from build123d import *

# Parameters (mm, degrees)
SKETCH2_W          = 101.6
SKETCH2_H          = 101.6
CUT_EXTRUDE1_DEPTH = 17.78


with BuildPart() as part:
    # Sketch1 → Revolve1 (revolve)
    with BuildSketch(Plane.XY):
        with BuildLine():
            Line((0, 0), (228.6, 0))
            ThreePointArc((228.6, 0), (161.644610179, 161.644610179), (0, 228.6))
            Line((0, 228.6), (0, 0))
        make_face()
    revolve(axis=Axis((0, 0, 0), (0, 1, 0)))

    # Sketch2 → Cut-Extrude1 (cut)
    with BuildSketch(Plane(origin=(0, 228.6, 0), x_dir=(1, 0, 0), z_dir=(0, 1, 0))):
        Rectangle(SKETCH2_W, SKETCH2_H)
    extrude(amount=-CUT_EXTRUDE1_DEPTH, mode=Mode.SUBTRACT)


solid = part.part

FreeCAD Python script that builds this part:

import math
import FreeCAD as App
import Part
import Sketcher

V = App.Vector
Q = App.Units.Quantity

doc = App.newDocument("Part")
body = doc.addObject("PartDesign::Body", "Body")

sketch1 = body.newObject("Sketcher::SketchObject", "Sketch")
sketch1.AttachmentSupport = (doc.getObject("XY_Plane"), [""])
sketch1.MapMode = "FlatFace"
sketch1.addGeometry(Part.LineSegment(V(0, 0, 0), V(229, 0, 0)), False)
sketch1.addGeometry(Part.ArcOfCircle(Part.Circle(V(0, 0, 0), V(0, 0, 1), 229), math.radians(0), math.radians(90)), False)
sketch1.addGeometry(Part.LineSegment(V(0, 229, 0), V(0, 0, 0)), False)
sketch1.addConstraint(Sketcher.Constraint("Coincident", 0, 2, 1, 1))
sketch1.addConstraint(Sketcher.Constraint("Coincident", 1, 2, 2, 1))
sketch1.addConstraint(Sketcher.Constraint("Coincident", 2, 2, 0, 1))
sketch1.addConstraint(Sketcher.Constraint("Horizontal", 0))
sketch1.addConstraint(Sketcher.Constraint("Vertical", 2))
sketch1.addConstraint(Sketcher.Constraint("Coincident", 1, 3, -1, 1))
sketch1.addConstraint(Sketcher.Constraint("Coincident", 2, 2, -1, 1))
sketch1.addConstraint(Sketcher.Constraint("Radius", 1, Q("9 in")))
revolution = body.newObject("PartDesign::Revolution", "Revolution")
revolution.Profile = sketch1
revolution.ReferenceAxis = (sketch1, ["V_Axis"])
revolution.Angle = 360

sketch2 = body.newObject("Sketcher::SketchObject", "Sketch001")
sketch2.AttachmentSupport = (doc.getObject("XZ_Plane"), [""])
sketch2.MapMode = "FlatFace"
sketch2.AttachmentOffset = App.Placement(V(0, 0, -9 * 25.4), App.Rotation())
sketch2.addGeometry(Part.LineSegment(V(-51, -51, 0), V(-51, 51, 0)), False)
sketch2.addGeometry(Part.LineSegment(V(-51, 51, 0), V(51, 51, 0)), False)
sketch2.addGeometry(Part.LineSegment(V(51, 51, 0), V(51, -51, 0)), False)
sketch2.addGeometry(Part.LineSegment(V(51, -51, 0), V(-51, -51, 0)), False)
sketch2.addConstraint(Sketcher.Constraint("Coincident", 0, 2, 1, 1))
sketch2.addConstraint(Sketcher.Constraint("Coincident", 1, 2, 2, 1))
sketch2.addConstraint(Sketcher.Constraint("Coincident", 2, 2, 3, 1))
sketch2.addConstraint(Sketcher.Constraint("Coincident", 3, 2, 0, 1))
sketch2.addConstraint(Sketcher.Constraint("Vertical", 0))
sketch2.addConstraint(Sketcher.Constraint("Horizontal", 1))
sketch2.addConstraint(Sketcher.Constraint("Vertical", 2))
sketch2.addConstraint(Sketcher.Constraint("Horizontal", 3))
sketch2.addConstraint(Sketcher.Constraint("Symmetric", 0, 2, 2, 2, -1, 1))
sketch2.addConstraint(Sketcher.Constraint("Equal", 3, 0))
sketch2.addConstraint(Sketcher.Constraint("DistanceX", 1, 1, 1, 2, Q("4 in")))
pocket1 = body.newObject("PartDesign::Pocket", "Pocket")
pocket1.Profile = sketch2
pocket1.Length = Q("0.7 in")
pocket1.Reversed = True

doc.recompute()
